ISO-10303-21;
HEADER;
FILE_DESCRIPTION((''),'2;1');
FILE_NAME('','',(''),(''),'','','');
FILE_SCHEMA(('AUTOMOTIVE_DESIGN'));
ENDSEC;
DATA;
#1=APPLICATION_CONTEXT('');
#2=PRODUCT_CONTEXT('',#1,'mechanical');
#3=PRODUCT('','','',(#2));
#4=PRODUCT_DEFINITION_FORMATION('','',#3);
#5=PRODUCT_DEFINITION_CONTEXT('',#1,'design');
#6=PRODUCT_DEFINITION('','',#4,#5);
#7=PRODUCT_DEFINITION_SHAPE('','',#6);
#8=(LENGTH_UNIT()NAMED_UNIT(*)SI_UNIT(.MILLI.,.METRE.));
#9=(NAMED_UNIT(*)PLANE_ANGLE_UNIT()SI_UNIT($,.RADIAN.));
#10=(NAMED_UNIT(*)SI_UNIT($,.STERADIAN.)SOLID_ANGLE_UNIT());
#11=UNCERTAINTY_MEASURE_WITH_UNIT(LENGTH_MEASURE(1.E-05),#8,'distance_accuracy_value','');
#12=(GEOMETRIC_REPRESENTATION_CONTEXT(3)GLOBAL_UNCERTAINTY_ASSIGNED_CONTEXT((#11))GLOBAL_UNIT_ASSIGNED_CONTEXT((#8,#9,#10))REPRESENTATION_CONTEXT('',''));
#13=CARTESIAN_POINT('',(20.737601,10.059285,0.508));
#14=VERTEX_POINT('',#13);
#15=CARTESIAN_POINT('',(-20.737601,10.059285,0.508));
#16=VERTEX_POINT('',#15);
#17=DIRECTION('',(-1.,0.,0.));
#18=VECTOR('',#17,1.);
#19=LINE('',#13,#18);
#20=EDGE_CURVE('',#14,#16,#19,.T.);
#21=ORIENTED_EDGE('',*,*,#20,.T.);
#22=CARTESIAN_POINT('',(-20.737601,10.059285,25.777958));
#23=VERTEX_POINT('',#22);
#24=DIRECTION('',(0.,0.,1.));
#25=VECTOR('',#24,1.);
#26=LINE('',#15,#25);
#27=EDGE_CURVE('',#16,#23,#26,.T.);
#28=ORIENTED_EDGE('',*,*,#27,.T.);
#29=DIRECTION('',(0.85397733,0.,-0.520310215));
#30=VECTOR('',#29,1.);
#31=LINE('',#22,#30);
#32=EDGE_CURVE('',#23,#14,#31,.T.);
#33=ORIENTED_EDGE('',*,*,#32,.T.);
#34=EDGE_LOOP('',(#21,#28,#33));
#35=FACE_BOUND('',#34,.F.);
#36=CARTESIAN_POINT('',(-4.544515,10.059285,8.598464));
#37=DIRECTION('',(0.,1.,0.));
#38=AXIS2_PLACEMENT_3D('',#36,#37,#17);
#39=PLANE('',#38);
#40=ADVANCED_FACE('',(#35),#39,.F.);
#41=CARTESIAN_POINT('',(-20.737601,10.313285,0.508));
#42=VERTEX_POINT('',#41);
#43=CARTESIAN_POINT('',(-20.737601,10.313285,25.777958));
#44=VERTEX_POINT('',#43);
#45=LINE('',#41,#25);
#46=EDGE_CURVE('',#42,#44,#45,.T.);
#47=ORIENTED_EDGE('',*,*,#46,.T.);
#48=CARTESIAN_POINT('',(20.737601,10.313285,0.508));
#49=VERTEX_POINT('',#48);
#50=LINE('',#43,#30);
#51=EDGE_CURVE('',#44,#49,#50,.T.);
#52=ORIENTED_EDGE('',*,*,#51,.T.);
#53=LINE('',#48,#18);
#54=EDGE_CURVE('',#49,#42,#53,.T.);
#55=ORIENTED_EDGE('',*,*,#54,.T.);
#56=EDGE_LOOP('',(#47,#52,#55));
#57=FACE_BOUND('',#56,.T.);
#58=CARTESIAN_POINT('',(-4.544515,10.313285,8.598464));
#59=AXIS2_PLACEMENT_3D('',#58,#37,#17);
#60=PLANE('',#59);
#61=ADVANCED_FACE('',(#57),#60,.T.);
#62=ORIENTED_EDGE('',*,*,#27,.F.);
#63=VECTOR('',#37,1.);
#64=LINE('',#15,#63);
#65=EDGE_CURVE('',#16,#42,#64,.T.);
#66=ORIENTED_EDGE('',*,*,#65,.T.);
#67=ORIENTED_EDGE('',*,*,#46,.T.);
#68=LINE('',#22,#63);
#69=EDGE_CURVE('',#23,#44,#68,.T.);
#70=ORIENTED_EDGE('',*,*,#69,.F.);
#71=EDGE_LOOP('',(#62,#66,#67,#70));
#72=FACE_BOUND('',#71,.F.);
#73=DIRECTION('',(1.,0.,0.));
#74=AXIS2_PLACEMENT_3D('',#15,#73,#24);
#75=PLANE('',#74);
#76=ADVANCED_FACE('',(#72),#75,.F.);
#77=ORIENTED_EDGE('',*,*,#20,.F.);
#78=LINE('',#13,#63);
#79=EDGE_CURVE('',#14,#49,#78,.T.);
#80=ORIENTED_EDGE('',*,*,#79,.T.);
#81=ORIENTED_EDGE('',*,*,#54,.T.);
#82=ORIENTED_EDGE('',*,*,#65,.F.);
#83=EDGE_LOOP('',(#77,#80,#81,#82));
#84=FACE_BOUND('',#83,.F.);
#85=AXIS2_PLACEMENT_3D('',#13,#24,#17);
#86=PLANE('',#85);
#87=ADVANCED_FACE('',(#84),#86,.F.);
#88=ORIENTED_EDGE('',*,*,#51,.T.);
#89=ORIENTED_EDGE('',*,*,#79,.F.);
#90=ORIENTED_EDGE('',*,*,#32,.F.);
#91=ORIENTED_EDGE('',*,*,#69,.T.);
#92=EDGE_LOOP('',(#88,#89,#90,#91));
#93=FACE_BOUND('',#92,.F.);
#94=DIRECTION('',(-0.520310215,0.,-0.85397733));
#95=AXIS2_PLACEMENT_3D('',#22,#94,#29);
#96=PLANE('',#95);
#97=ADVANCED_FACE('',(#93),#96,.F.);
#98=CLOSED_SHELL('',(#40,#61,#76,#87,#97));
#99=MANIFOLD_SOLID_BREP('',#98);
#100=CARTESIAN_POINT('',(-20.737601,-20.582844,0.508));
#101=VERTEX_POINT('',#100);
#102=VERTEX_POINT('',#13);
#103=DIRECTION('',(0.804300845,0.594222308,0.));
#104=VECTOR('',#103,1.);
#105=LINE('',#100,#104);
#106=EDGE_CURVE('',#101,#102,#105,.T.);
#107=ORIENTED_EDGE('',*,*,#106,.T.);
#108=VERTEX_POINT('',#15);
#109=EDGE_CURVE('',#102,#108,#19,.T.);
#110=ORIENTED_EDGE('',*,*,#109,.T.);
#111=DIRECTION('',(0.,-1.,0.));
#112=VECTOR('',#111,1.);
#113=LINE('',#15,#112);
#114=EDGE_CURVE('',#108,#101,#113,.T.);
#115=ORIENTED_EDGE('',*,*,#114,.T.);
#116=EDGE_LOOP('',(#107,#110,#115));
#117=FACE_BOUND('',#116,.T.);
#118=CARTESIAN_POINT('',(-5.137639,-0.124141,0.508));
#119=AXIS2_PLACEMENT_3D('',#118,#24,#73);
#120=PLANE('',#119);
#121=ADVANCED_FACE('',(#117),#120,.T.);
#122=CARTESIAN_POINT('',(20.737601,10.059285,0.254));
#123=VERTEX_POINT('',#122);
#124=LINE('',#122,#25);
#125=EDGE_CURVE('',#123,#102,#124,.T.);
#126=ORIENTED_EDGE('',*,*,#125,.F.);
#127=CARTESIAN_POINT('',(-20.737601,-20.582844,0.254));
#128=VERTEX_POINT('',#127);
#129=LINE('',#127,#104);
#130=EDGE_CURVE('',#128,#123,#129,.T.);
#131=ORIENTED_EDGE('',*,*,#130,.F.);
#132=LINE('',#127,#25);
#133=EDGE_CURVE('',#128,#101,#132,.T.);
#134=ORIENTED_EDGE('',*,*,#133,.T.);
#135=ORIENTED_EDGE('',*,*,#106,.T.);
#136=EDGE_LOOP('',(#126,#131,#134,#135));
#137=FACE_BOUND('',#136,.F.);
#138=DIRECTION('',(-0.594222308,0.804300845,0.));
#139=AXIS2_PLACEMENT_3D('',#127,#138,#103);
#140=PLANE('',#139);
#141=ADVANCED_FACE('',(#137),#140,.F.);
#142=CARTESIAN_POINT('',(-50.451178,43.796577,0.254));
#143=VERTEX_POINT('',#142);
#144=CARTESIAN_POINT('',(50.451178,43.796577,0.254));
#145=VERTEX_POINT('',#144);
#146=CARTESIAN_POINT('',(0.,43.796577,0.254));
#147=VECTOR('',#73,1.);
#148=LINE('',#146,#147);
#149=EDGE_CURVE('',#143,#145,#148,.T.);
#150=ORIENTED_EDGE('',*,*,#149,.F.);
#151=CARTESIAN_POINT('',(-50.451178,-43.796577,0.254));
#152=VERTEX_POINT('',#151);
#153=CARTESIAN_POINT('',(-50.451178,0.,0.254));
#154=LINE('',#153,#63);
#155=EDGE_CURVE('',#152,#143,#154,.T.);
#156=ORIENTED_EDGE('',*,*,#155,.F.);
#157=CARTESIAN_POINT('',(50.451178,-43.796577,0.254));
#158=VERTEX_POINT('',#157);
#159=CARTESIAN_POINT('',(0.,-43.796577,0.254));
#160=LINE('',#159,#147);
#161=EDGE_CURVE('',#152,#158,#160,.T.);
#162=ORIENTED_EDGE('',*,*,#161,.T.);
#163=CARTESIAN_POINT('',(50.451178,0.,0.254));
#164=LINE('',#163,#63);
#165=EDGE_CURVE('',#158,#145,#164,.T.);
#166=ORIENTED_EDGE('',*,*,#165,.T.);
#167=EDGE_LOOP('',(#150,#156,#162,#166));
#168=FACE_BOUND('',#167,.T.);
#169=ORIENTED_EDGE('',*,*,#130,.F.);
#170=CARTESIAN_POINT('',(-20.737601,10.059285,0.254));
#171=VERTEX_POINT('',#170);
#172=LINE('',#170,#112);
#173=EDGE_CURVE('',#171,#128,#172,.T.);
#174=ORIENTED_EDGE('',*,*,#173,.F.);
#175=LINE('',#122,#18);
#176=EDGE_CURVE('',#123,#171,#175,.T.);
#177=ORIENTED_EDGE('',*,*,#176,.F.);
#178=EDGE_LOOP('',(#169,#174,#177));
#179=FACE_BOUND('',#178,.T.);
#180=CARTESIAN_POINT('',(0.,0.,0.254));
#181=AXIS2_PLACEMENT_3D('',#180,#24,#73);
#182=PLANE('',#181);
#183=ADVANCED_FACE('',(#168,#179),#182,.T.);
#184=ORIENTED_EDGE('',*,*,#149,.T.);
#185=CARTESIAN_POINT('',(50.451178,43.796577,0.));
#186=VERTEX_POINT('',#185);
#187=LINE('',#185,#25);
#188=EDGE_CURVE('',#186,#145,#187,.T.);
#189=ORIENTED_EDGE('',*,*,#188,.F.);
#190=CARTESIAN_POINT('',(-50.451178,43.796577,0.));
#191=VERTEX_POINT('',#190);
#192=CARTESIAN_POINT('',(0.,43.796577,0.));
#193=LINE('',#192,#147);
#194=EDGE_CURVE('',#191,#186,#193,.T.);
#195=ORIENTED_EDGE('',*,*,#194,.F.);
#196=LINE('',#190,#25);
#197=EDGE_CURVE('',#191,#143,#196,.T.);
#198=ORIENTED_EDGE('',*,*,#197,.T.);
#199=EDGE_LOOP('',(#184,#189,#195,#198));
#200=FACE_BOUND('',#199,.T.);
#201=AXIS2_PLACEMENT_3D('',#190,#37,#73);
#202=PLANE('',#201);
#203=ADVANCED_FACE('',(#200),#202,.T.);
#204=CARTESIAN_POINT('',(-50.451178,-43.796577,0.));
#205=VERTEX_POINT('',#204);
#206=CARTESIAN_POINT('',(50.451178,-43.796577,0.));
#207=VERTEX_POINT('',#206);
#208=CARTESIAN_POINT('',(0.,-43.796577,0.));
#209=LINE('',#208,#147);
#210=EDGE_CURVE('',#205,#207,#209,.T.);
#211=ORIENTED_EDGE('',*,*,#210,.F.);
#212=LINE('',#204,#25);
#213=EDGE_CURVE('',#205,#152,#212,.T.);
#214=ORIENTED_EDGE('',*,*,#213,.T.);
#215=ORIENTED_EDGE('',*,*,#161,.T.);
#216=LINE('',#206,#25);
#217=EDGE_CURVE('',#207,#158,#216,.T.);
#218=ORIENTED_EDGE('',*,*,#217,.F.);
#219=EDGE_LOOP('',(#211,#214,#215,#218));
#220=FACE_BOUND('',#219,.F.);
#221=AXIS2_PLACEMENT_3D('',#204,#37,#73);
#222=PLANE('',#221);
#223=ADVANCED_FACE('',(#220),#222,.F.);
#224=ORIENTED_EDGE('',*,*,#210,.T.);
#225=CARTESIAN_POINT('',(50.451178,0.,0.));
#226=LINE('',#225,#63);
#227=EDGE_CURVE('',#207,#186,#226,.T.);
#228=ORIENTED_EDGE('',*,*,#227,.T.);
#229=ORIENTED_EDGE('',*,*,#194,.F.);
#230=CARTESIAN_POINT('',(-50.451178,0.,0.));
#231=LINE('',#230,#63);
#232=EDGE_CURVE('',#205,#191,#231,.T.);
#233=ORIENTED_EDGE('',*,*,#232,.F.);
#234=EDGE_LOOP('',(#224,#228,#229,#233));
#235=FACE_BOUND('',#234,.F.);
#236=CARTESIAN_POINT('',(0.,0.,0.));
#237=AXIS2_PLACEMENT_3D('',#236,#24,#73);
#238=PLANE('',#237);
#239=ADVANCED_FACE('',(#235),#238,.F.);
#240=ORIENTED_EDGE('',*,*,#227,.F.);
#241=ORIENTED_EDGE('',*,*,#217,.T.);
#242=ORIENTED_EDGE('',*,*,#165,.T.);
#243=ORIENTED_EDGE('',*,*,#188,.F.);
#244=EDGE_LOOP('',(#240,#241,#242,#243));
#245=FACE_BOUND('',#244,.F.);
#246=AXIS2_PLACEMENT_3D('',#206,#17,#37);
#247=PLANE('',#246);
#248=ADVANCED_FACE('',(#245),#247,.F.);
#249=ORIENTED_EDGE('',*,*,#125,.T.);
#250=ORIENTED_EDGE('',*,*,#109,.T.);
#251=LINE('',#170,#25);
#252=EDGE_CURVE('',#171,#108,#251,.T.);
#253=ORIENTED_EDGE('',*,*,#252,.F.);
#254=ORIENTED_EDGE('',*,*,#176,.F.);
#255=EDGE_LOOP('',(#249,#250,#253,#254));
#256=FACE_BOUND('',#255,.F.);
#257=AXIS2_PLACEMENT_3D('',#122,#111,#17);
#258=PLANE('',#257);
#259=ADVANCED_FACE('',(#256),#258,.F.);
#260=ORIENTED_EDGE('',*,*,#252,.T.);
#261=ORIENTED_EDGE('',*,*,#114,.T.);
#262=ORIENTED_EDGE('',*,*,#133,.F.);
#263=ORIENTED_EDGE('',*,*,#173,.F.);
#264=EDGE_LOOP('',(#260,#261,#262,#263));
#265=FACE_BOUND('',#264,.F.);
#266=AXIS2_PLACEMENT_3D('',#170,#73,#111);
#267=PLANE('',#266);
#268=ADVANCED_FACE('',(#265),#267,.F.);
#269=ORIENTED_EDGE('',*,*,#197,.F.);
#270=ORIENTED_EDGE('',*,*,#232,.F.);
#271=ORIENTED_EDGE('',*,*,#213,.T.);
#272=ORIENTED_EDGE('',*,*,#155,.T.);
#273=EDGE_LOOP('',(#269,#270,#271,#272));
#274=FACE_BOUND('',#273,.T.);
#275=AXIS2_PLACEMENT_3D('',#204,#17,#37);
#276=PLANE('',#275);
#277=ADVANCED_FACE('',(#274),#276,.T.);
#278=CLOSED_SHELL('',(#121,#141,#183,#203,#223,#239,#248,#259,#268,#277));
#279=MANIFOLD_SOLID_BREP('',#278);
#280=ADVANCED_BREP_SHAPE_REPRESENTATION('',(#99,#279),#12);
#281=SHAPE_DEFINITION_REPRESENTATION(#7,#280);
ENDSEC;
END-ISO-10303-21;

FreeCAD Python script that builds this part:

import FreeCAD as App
import Part
import Sketcher
from FreeCAD import Vector
Q = App.Units.Quantity


def add_polygon(sketch, points):
    """Adds a closed chain of lines whose ends are joined by coincident constraints."""
    first, n = sketch.GeometryCount, len(points)
    for a, b in zip(points, points[1:] + points[:1]):
        sketch.addGeometry(Part.LineSegment(App.Vector(*a, 0), App.Vector(*b, 0)), False)
    for i in range(n):
        sketch.addConstraint(Sketcher.Constraint("Coincident", first + i, 2, first + (i + 1) % n, 1))

doc = App.newDocument("Part")
body = doc.addObject("PartDesign::Body", "Body")

# Sketch on XY plane
sketch1 = doc.addObject("Sketcher::SketchObject", "Sketch")
body.addObject(sketch1)
sketch1.AttachmentSupport = (doc.XY_Plane, [""])
sketch1.MapMode = "FlatFace"
add_polygon(sketch1, [(-50.451178, 43.796577), (-50.451178, -43.796577), (50.451178, -43.796577), (50.451178, 43.796577)])  # lines 0-3
sketch1.addConstraint([
    Sketcher.Constraint("Vertical", 0),
    Sketcher.Constraint("Horizontal", 1),
    Sketcher.Constraint("Vertical", 2),
    Sketcher.Constraint("Horizontal", 3),
    Sketcher.Constraint("Symmetric", 0, 2, 2, 2, -1, 1),
    Sketcher.Constraint("DistanceX", 1, 1, 1, 2, Q("100.902356 mm")),
    Sketcher.Constraint("DistanceY", 0, 2, 0, 1, Q("87.593154 mm")),
])
pad1 = doc.addObject("PartDesign::Pad", "Pad")
body.addObject(pad1)
pad1.Profile = sketch1
pad1.Length = Q("0.01 in")

# Sketch on XY plane
sketch2 = doc.addObject("Sketcher::SketchObject", "Sketch001")
body.addObject(sketch2)
sketch2.AttachmentSupport = (doc.XY_Plane, [""])
sketch2.MapMode = "FlatFace"
sketch2.AttachmentOffset = App.Placement(Vector(0, 0, 0.01 * 25.4), App.Rotation())
add_polygon(sketch2, [(20.737601, 10.059285), (-20.737601, 10.059285), (-20.737601, -20.582844)])  # lines 0-2
sketch2.addConstraint([
    Sketcher.Constraint("Horizontal", 0),
    Sketcher.Constraint("Vertical", 1),
    Sketcher.Constraint("DistanceY", 1, 2, 1, 1, Q("30.642129 mm")),
    Sketcher.Constraint("DistanceX", 0, 2, -1, 1, Q("20.737601 mm")),
    Sketcher.Constraint("DistanceX", -1, 1, 2, 2, Q("20.737601 mm")),
    Sketcher.Constraint("DistanceY", -1, 1, 0, 2, Q("10.059285 mm")),
])
pad2 = doc.addObject("PartDesign::Pad", "Pad001")
body.addObject(pad2)
pad2.Profile = sketch2
pad2.Length = Q("0.01 in")
body2 = doc.addObject("PartDesign::Body", "Body001")

# Sketch on XZ plane
sketch3 = doc.addObject("Sketcher::SketchObject", "Sketch002")
body2.addObject(sketch3)
sketch3.AttachmentSupport = (doc.getObject("XZ_Plane001"), [""])
sketch3.MapMode = "FlatFace"
sketch3.AttachmentOffset = App.Placement(Vector(0, 0, -10.059285), App.Rotation())
add_polygon(sketch3, [(20.737601, 0.508), (-20.737601, 0.508), (-20.737601, 25.777958)])  # lines 0-2
sketch3.addConstraint([
    Sketcher.Constraint("Horizontal", 0),
    Sketcher.Constraint("Vertical", 1),
    Sketcher.Constraint("DistanceY", -1, 1, 0, 2, Q("0.02 in")),
    Sketcher.Constraint("Distance", 2, Q("48.5671 mm")),
    Sketcher.Constraint("DistanceY", 1, 1, 1, 2, Q("25.269958 mm")),
    Sketcher.Constraint("DistanceX", 0, 2, -1, 1, Q("20.737601 mm")),
])
pad3 = doc.addObject("PartDesign::Pad", "Pad002")
body2.addObject(pad3)
pad3.Profile = sketch3
pad3.Length = Q("0.01 in")
pad3.Reversed = True

doc.recompute()
